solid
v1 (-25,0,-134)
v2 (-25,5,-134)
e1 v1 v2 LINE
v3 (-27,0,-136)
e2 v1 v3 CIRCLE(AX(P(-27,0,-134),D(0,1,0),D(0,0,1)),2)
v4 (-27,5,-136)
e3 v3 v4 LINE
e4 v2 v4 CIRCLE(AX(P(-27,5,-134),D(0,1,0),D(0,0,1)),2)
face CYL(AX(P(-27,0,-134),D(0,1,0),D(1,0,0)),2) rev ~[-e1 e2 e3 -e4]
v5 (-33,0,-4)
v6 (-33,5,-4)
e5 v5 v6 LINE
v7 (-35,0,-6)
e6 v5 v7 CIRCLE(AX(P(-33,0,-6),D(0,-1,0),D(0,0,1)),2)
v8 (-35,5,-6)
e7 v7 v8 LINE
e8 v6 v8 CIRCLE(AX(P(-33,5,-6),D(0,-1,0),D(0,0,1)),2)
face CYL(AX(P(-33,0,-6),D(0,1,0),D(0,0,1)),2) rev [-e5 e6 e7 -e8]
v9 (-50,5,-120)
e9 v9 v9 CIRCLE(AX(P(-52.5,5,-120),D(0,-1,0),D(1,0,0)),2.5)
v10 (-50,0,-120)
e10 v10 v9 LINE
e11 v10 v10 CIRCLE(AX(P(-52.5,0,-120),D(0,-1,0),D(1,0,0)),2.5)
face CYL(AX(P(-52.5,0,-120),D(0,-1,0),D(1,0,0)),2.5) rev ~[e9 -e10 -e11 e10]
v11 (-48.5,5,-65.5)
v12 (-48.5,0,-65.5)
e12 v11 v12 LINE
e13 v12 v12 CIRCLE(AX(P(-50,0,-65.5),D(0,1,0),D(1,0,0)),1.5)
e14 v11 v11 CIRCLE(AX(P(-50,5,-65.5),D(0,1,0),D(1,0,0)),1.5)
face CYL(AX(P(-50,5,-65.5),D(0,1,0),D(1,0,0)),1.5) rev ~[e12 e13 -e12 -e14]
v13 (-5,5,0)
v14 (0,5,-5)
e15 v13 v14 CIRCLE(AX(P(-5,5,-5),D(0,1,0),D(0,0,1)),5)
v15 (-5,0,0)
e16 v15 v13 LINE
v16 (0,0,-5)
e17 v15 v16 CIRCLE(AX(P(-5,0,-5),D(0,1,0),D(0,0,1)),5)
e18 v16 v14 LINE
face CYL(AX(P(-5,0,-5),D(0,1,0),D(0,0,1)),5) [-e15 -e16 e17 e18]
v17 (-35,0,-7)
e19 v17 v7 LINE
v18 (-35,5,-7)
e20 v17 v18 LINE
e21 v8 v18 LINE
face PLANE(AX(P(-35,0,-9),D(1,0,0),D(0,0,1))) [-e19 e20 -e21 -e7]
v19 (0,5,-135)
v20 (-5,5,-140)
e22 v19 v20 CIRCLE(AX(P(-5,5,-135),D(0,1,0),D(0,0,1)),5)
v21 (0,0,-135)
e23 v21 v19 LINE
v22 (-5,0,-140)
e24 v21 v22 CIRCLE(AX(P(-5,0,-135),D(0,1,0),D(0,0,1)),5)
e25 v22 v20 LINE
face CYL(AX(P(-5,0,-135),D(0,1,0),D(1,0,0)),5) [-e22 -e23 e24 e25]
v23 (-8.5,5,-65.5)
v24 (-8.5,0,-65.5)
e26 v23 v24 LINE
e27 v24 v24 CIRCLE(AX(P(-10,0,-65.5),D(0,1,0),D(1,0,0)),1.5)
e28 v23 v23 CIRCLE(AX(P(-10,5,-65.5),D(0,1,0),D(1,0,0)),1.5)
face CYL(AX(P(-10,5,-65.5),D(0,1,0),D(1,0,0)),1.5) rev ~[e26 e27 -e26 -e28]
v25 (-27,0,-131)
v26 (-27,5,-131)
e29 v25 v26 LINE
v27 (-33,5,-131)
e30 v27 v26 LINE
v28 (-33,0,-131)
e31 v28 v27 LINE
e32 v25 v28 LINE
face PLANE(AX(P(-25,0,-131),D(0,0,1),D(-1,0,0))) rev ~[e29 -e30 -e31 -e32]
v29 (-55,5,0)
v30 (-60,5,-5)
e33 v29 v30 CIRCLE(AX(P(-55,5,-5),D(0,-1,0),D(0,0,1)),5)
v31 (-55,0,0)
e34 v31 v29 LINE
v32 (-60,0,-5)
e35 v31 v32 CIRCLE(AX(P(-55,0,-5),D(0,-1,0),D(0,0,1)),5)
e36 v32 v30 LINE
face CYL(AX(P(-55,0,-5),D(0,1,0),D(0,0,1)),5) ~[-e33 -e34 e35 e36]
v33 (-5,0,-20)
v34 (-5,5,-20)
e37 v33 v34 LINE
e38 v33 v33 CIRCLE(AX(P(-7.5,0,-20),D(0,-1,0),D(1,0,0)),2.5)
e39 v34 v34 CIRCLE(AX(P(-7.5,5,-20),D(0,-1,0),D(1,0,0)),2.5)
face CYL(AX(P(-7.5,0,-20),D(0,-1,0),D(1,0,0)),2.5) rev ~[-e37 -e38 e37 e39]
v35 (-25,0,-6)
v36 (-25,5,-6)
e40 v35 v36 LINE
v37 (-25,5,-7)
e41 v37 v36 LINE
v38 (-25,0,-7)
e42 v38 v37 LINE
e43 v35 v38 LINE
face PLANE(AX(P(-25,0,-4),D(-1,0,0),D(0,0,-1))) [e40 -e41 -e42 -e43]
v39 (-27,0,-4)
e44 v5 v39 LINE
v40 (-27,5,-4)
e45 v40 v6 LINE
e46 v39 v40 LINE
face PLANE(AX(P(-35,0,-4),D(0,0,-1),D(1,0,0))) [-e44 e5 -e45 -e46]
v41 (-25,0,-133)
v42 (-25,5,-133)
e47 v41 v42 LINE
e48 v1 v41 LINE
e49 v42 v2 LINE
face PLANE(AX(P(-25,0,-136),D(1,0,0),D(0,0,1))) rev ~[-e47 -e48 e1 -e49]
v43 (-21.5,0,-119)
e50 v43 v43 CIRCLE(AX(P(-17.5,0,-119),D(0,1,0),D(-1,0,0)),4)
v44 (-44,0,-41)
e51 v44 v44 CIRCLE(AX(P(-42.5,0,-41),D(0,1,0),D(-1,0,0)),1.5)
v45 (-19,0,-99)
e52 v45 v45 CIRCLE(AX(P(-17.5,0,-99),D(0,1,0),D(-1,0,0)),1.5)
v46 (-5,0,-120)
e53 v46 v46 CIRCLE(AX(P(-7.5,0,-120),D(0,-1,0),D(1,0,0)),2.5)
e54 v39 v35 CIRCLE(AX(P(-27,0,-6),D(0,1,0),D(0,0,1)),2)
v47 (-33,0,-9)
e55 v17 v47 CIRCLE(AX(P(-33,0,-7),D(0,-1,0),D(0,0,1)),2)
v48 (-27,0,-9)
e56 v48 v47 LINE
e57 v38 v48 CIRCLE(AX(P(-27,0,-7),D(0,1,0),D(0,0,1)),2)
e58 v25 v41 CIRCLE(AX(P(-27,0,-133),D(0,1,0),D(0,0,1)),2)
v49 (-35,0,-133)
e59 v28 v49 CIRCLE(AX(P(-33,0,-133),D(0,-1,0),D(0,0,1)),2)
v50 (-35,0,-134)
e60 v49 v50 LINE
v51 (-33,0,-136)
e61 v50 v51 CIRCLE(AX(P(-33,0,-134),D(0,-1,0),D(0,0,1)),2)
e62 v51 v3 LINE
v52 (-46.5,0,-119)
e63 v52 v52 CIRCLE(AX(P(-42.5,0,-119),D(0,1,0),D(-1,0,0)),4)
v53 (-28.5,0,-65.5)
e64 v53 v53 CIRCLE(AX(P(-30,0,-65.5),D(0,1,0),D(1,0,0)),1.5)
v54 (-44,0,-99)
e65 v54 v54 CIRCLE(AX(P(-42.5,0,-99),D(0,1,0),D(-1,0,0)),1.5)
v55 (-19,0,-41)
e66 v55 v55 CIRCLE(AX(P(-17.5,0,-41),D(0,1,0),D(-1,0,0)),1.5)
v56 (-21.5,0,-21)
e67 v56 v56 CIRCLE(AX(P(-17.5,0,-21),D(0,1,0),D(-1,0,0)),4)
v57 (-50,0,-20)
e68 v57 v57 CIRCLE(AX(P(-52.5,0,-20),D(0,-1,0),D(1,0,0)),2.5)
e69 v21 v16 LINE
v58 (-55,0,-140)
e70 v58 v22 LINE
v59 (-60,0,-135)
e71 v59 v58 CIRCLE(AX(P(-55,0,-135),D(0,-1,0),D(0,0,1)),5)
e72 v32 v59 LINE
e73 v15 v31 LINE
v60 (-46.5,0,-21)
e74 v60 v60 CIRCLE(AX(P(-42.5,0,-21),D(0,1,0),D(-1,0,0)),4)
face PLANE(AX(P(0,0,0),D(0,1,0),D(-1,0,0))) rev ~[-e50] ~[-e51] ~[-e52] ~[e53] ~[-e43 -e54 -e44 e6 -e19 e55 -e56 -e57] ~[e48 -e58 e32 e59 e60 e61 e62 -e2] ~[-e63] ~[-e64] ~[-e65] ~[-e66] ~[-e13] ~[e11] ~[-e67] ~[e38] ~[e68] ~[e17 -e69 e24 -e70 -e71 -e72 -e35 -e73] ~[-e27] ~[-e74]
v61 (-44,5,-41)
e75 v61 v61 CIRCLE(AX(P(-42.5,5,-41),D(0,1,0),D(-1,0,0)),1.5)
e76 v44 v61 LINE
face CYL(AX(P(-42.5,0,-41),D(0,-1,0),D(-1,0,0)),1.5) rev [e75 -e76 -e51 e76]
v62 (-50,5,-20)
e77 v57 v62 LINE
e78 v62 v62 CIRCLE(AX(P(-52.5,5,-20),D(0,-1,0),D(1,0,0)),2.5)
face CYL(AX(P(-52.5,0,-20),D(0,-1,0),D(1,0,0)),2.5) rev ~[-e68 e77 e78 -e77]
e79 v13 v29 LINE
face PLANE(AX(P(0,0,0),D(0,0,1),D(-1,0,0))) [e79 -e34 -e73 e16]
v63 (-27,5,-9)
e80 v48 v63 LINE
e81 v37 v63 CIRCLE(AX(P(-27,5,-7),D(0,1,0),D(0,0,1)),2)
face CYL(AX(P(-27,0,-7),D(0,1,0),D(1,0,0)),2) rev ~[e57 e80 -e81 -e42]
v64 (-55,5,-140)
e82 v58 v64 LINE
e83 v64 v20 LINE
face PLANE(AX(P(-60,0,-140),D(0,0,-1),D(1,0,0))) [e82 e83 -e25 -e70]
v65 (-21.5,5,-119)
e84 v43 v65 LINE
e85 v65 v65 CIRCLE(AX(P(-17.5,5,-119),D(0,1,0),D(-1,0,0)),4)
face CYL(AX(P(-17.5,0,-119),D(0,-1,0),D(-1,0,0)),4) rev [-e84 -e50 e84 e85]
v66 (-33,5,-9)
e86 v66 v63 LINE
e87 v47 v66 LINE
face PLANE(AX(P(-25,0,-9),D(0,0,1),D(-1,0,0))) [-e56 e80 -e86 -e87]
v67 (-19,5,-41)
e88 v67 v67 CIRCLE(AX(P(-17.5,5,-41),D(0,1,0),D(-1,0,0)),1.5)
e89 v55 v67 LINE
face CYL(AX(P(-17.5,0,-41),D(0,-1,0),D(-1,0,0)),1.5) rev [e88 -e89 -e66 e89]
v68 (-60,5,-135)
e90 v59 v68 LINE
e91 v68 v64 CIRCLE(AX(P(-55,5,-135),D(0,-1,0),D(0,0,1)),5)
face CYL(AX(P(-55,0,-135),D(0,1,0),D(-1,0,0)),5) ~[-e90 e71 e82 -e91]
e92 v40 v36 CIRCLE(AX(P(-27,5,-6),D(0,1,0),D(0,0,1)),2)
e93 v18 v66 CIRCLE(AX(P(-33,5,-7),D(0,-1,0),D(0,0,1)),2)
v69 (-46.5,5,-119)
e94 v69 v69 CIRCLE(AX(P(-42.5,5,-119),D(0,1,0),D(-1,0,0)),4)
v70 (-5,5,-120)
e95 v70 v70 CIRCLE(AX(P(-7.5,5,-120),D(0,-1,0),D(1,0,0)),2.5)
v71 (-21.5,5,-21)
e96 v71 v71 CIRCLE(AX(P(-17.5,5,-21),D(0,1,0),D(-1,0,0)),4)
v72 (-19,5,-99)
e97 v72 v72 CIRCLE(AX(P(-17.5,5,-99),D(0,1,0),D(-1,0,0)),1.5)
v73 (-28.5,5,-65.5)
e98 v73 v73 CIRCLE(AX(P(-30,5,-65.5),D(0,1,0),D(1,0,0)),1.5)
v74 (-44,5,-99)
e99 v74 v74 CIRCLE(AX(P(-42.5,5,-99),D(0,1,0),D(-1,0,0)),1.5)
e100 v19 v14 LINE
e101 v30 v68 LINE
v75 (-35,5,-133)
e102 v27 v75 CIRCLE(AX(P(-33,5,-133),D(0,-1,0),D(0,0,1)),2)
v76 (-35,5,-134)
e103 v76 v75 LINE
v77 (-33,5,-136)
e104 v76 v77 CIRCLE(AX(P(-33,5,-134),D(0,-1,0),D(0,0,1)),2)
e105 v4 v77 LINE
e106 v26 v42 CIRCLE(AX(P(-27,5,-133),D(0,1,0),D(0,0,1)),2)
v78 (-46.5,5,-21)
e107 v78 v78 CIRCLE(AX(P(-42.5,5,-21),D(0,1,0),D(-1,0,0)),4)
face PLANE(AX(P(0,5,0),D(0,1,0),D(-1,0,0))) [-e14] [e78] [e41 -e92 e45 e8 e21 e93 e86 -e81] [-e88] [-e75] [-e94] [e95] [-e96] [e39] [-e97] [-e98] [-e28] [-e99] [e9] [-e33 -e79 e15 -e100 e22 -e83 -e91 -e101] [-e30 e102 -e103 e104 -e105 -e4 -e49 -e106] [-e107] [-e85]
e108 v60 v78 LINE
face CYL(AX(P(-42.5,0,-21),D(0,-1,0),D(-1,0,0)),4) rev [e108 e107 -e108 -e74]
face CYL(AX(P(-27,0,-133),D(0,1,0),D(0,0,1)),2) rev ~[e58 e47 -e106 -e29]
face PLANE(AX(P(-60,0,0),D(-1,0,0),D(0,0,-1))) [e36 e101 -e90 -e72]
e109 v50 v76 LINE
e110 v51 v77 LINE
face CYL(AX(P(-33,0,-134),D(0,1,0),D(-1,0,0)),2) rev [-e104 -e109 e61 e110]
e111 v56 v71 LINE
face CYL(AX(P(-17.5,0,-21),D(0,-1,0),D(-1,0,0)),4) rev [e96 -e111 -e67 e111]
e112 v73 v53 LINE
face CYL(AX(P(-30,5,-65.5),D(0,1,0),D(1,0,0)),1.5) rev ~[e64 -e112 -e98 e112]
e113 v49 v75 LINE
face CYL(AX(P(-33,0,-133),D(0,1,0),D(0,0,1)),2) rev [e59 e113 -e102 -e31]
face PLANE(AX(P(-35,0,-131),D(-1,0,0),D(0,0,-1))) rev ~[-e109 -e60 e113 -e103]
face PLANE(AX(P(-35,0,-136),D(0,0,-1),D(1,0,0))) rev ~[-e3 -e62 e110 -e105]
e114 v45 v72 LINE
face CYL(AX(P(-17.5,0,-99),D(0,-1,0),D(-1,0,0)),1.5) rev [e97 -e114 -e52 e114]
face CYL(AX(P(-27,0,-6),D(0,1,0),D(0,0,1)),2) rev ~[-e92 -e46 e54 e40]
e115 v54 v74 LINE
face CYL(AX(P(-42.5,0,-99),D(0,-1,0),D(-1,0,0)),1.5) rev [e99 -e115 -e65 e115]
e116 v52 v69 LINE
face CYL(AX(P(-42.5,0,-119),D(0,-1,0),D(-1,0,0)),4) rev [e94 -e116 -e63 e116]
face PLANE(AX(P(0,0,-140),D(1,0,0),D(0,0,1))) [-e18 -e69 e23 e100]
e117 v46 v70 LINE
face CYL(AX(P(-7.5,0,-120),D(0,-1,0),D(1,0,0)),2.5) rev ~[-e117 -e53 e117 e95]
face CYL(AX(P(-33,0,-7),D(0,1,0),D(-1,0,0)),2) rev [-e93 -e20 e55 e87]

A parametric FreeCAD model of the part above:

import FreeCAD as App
import Part
import Sketcher
Q = App.Units.Quantity


def edges_at(feature, points):
    """Names of the edges that pass closest to the given points."""
    edges = feature.Shape.Edges
    near = lambda p: min(range(len(edges)), key=lambda i: edges[i].distToShape(Part.Vertex(*p))[0])
    return sorted({f"Edge{near(p) + 1}" for p in points})


def add_polygon(sketch, points):
    """Adds a closed chain of lines whose ends are joined by coincident constraints."""
    first, n = sketch.GeometryCount, len(points)
    for a, b in zip(points, points[1:] + points[:1]):
        sketch.addGeometry(Part.LineSegment(App.Vector(*a, 0), App.Vector(*b, 0)), False)
    for i in range(n):
        sketch.addConstraint(Sketcher.Constraint("Coincident", first + i, 2, first + (i + 1) % n, 1))

doc = App.newDocument("Part")
body = doc.addObject("PartDesign::Body", "Body")

sketch1 = body.newObject("Sketcher::SketchObject", "Sketch")
sketch1.AttachmentSupport = (doc.getObject("XZ_Plane"), [""])
sketch1.MapMode = "FlatFace"
add_polygon(sketch1, [(-60, 0), (0, 0), (0, -140), (-60, -140)])
sketch1.addGeometry(Part.Circle(App.Vector(-17.5, -119, 0), App.Vector(0, 0, 1), 4), False)
sketch1.addGeometry(Part.Circle(App.Vector(-17.5, -99, 0), App.Vector(0, 0, 1), 1.5), False)
sketch1.addGeometry(Part.Circle(App.Vector(-42.5, -119, 0), App.Vector(0, 0, 1), 4), False)
sketch1.addGeometry(Part.Circle(App.Vector(-42.5, -99, 0), App.Vector(0, 0, 1), 1.5), False)
sketch1.addGeometry(Part.Circle(App.Vector(-17.5, -41, 0), App.Vector(0, 0, 1), 1.5), False)
sketch1.addGeometry(Part.Circle(App.Vector(-17.5, -21, 0), App.Vector(0, 0, 1), 4), False)
sketch1.addGeometry(Part.Circle(App.Vector(-42.5, -41, 0), App.Vector(0, 0, 1), 1.5), False)
sketch1.addGeometry(Part.Circle(App.Vector(-42.5, -21, 0), App.Vector(0, 0, 1), 4), False)
sketch1.addConstraint([
    Sketcher.Constraint("Horizontal", 0),
    Sketcher.Constraint("Vertical", 1),
    Sketcher.Constraint("Horizontal", 2),
    Sketcher.Constraint("Vertical", 3),
    Sketcher.Constraint("Coincident", 0, 2, -1, 1),
    Sketcher.Constraint("Equal", 4, 6),
    Sketcher.Constraint("Equal", 5, 7),
    Sketcher.Constraint("Equal", 7, 8),
    Sketcher.Constraint("Equal", 6, 9),
    Sketcher.Constraint("Equal", 8, 10),
    Sketcher.Constraint("Equal", 9, 11),
    Sketcher.Constraint("Horizontal", 4, 3, 6, 3),
    Sketcher.Constraint("Horizontal", 5, 3, 7, 3),
    Sketcher.Constraint("Horizontal", 8, 3, 10, 3),
    Sketcher.Constraint("Horizontal", 9, 3, 11, 3),
    Sketcher.Constraint("Vertical", 4, 3, 5, 3),
    Sketcher.Constraint("Vertical", 6, 3, 7, 3),
    Sketcher.Constraint("Vertical", 5, 3, 8, 3),
    Sketcher.Constraint("Vertical", 8, 3, 9, 3),
    Sketcher.Constraint("Vertical", 7, 3, 10, 3),
    Sketcher.Constraint("Vertical", 10, 3, 11, 3),
    Sketcher.Constraint("Diameter", 4, Q("8 mm")),
    Sketcher.Constraint("Diameter", 5, Q("3 mm")),
    Sketcher.Constraint("DistanceX", 0, 1, 0, 2, Q("60 mm")),
    Sketcher.Constraint("DistanceY", 1, 2, 1, 1, Q("140 mm")),
    Sketcher.Constraint("DistanceY", 9, 3, -1, 1, Q("21 mm")),
    Sketcher.Constraint("DistanceY", 4, 3, 5, 3, Q("20 mm")),
    Sketcher.Constraint("DistanceY", 8, 3, 9, 3, Q("20 mm")),
    Sketcher.Constraint("DistanceY", 1, 2, 4, 3, Q("21 mm")),
    Sketcher.Constraint("DistanceX", 6, 3, 4, 3, Q("25 mm")),
    Sketcher.Constraint("DistanceX", 4, 3, -1, 1, Q("17.5 mm")),
])
pad1 = body.newObject("PartDesign::Pad", "Pad")
pad1.Profile = sketch1
pad1.Length = 5
pad1.Reversed = True

sketch2 = body.newObject("Sketcher::SketchObject", "Sketch001")
sketch2.AttachmentSupport = (doc.getObject("XZ_Plane"), [""])
sketch2.MapMode = "FlatFace"
sketch2.addGeometry([
    Part.Circle(App.Vector(-52.5, -120, 0), App.Vector(0, 0, 1), 2.5),
    Part.Circle(App.Vector(-52.5, -20, 0), App.Vector(0, 0, 1), 2.5),
    Part.Circle(App.Vector(-7.5, -120, 0), App.Vector(0, 0, 1), 2.5),
    Part.Circle(App.Vector(-7.5, -20, 0), App.Vector(0, 0, 1), 2.5),
], False)
sketch2.addConstraint([
    Sketcher.Constraint("Equal", 0, 1),
    Sketcher.Constraint("Equal", 1, 2),
    Sketcher.Constraint("Equal", 2, 3),
    Sketcher.Constraint("Horizontal", 0, 3, 2, 3),
    Sketcher.Constraint("Horizontal", 1, 3, 3, 3),
    Sketcher.Constraint("Vertical", 0, 3, 1, 3),
    Sketcher.Constraint("Vertical", 2, 3, 3, 3),
    Sketcher.Constraint("Diameter", 0, Q("5 mm")),
    Sketcher.Constraint("DistanceY", 1, 3, -1, 1, Q("20 mm")),
    Sketcher.Constraint("DistanceX", 2, 3, -1, 1, Q("7.5 mm")),
    Sketcher.Constraint("DistanceY", 0, 3, -1, 1, Q("120 mm")),
    Sketcher.Constraint("DistanceX", 0, 3, 2, 3, Q("45 mm")),
])
pocket1 = body.newObject("PartDesign::Pocket", "Pocket")
pocket1.Profile = sketch2
pocket1.Length = 10

sketch3 = body.newObject("Sketcher::SketchObject", "Sketch002")
sketch3.AttachmentSupport = (doc.getObject("XZ_Plane"), [""])
sketch3.MapMode = "FlatFace"
add_polygon(sketch3, [(-35, -131), (-35, -136), (-25, -136), (-25, -131)])
add_polygon(sketch3, [(-25, -4), (-35, -4), (-35, -9), (-25, -9)])
sketch3.addConstraint([
    Sketcher.Constraint("Vertical", 0),
    Sketcher.Constraint("Horizontal", 1),
    Sketcher.Constraint("Vertical", 2),
    Sketcher.Constraint("Horizontal", 3),
    Sketcher.Constraint("Horizontal", 4),
    Sketcher.Constraint("Vertical", 5),
    Sketcher.Constraint("Horizontal", 6),
    Sketcher.Constraint("Vertical", 7),
    Sketcher.Constraint("Vertical", 3, 2, 4, 2),
    Sketcher.Constraint("Vertical", 2, 2, 6, 2),
    Sketcher.Constraint("Equal", 2, 5),
    Sketcher.Constraint("DistanceX", 1, 1, 1, 2, Q("10 mm")),
    Sketcher.Constraint("DistanceY", 0, 2, 0, 1, Q("5 mm")),
    Sketcher.Constraint("DistanceX", 1, 2, -1, 1, Q("25 mm")),
    Sketcher.Constraint("DistanceY", 4, 2, -1, 1, Q("4 mm")),
    Sketcher.Constraint("DistanceY", 0, 2, -1, 1, Q("136 mm")),
])
pocket2 = body.newObject("PartDesign::Pocket", "Pocket001")
pocket2.Profile = sketch3
pocket2.Length = 10
doc.recompute()

fillet = body.newObject("PartDesign::Fillet", "Fillet")
fillet.Base = (pocket2, edges_at(pocket2, [
    (0, 2.5, -140),
    (-60, 2.5, -140),
    (-60, 2.5, 0),
    (0, 2.5, 0),
]))
fillet.Radius = 5

sketch4 = body.newObject("Sketcher::SketchObject", "Sketch003")
sketch4.AttachmentSupport = (doc.getObject("XZ_Plane"), [""])
sketch4.MapMode = "FlatFace"
sketch4.AttachmentOffset = App.Placement(App.Vector(0, 0, -5), App.Rotation())
sketch4.addGeometry([
    Part.Circle(App.Vector(-10, -65.5, 0), App.Vector(0, 0, 1), 1.5),
    Part.Circle(App.Vector(-30, -65.5, 0), App.Vector(0, 0, 1), 1.5),
    Part.Circle(App.Vector(-50, -65.5, 0), App.Vector(0, 0, 1), 1.5),
], False)
sketch4.addConstraint([
    Sketcher.Constraint("Equal", 0, 1),
    Sketcher.Constraint("Equal", 1, 2),
    Sketcher.Constraint("Horizontal", 0, 3, 1, 3),
    Sketcher.Constraint("Horizontal", 1, 3, 2, 3),
    Sketcher.Constraint("Diameter", 0, Q("3 mm")),
    Sketcher.Constraint("DistanceX", 0, 3, -1, 1, Q("10 mm")),
    Sketcher.Constraint("DistanceX", 1, 3, -1, 1, Q("30 mm")),
    Sketcher.Constraint("DistanceX", 2, 3, -1, 1, Q("50 mm")),
    Sketcher.Constraint("DistanceY", 0, 3, -1, 1, Q("65.5 mm")),
])
pocket3 = body.newObject("PartDesign::Pocket", "Pocket002")
pocket3.Profile = sketch4
pocket3.Length = 10
pocket3.Reversed = True
doc.recompute()

fillet2 = body.newObject("PartDesign::Fillet", "Fillet001")
fillet2.Base = (pocket3, edges_at(pocket3, [
    (-25, 2.5, -131),
    (-25, 2.5, -136),
    (-35, 2.5, -136),
    (-35, 2.5, -131),
    (-25, 2.5, -9),
    (-25, 2.5, -4),
    (-35, 2.5, -4),
    (-35, 2.5, -9),
]))
fillet2.Radius = 2

doc.recompute()
